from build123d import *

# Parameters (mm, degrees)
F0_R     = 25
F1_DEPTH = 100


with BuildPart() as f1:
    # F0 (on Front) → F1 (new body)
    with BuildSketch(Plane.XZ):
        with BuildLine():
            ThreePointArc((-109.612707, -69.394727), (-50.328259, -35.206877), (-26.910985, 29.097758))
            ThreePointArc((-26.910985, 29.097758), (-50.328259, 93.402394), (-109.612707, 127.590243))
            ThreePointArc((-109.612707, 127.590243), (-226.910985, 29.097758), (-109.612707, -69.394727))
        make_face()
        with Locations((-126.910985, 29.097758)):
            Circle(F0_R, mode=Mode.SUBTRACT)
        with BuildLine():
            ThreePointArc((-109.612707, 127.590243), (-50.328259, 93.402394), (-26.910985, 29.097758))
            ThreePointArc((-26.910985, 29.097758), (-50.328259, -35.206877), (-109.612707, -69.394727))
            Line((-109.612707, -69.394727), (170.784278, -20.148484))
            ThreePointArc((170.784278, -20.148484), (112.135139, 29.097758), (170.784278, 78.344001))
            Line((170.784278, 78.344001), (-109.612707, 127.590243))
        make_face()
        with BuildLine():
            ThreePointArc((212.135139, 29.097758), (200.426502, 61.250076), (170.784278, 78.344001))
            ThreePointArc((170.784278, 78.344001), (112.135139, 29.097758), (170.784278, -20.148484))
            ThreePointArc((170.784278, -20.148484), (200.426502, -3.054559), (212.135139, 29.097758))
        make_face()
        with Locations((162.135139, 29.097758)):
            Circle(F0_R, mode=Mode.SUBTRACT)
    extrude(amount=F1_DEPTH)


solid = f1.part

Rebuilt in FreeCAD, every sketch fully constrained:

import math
import FreeCAD as App
import Part
import Sketcher
from FreeCAD import Vector
Q = App.Units.Quantity

doc = App.newDocument("Part")
body = doc.addObject("PartDesign::Body", "Body")

sketch1 = body.newObject("Sketcher::SketchObject", "Sketch")
sketch1.AttachmentSupport = (doc.getObject("XZ_Plane"), [""])
sketch1.MapMode = "FlatFace"
sketch1.addGeometry([
    Part.ArcOfCircle(Part.Circle(Vector(-127, 29, 0), Vector(0, 0, 1), 100), math.radians(80), math.radians(280)),
    Part.LineSegment(Vector(-110, -69, 0), Vector(171, -20, 0)),
    Part.ArcOfCircle(Part.Circle(Vector(162, 29, 0), Vector(0, 0, 1), 50), math.radians(-80), math.radians(0)),
    Part.ArcOfCircle(Part.Circle(Vector(162, 29, 0), Vector(0, 0, 1), 50), math.radians(0), math.radians(80)),
    Part.LineSegment(Vector(171, 78, 0), Vector(-110, 128, 0)),
    Part.Circle(Vector(-127, 29, 0), Vector(0, 0, 1), 25),
    Part.Circle(Vector(162, 29, 0), Vector(0, 0, 1), 25),
], False)
sketch1.addConstraint([
    Sketcher.Constraint("Tangent", 0, 2, 1, 1),
    Sketcher.Constraint("Tangent", 1, 2, 2, 1),
    Sketcher.Constraint("Tangent", 2, 2, 3, 1),
    Sketcher.Constraint("Tangent", 3, 2, 4, 1),
    Sketcher.Constraint("Tangent", 4, 2, 0, 1),
    Sketcher.Constraint("Coincident", 5, 3, 0, 3),
    Sketcher.Constraint("Coincident", 6, 3, 2, 3),
    Sketcher.Constraint("Equal", 2, 3),
    Sketcher.Constraint("Equal", 5, 6),
    Sketcher.Constraint("Horizontal", 0, 3, 2, 3),
    Sketcher.Constraint("Horizontal", 6, 3, 2, 2),
    Sketcher.Constraint("Diameter", 5, Q("50 mm")),
    Sketcher.Constraint("Radius", 0, Q("100 mm")),
    Sketcher.Constraint("Radius", 2, Q("50 mm")),
    Sketcher.Constraint("DistanceY", -1, 1, 3, 2, Q("78.344001 mm")),
    Sketcher.Constraint("Distance", 1, Q("284.68871 mm")),
    Sketcher.Constraint("DistanceX", -1, 1, 2, 3, Q("162.135139 mm")),
])
pad1 = body.newObject("PartDesign::Pad", "Pad")
pad1.Profile = sketch1
pad1.Length = 100

doc.recompute()
